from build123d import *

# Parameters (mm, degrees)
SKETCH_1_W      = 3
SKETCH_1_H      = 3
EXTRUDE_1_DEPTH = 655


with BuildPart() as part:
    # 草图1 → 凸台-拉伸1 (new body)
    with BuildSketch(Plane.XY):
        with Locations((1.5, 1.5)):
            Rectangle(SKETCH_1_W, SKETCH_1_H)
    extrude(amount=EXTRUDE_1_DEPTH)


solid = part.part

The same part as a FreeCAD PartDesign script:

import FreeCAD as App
import Part
import Sketcher

doc = App.newDocument("Part")
body = doc.addObject("PartDesign::Body", "Body")

# Sketch on XY plane
sketch1 = body.newObject("Sketcher::SketchObject", "Sketch")
sketch1.AttachmentSupport = (doc.getObject("XY_Plane"), [""])
sketch1.MapMode = "FlatFace"
sketch1.addGeometry([
    Part.LineSegment(App.Vector(0, 3, 0), App.Vector(0, 0, 0)),
    Part.LineSegment(App.Vector(0, 0, 0), App.Vector(3, 0, 0)),
    Part.LineSegment(App.Vector(3, 0, 0), App.Vector(3, 3, 0)),
    Part.LineSegment(App.Vector(3, 3, 0), App.Vector(0, 3, 0)),
], False)
sketch1.addConstraint([
    Sketcher.Constraint("Coincident", 0, 2, 1, 1),
    Sketcher.Constraint("Coincident", 1, 2, 2, 1),
    Sketcher.Constraint("Coincident", 2, 2, 3, 1),
    Sketcher.Constraint("Coincident", 3, 2, 0, 1),
    Sketcher.Constraint("Vertical", 0),
    Sketcher.Constraint("Horizontal", 1),
    Sketcher.Constraint("Vertical", 2),
    Sketcher.Constraint("Horizontal", 3),
    Sketcher.Constraint("Coincident", 0, 2, -1, 1),
    Sketcher.Constraint("Equal", 3, 0),
    Sketcher.Constraint("DistanceX", 1, 1, 1, 2, 3.0),
])
pad1 = body.newObject("PartDesign::Pad", "Pad")
pad1.Profile = sketch1
pad1.Length = 655

doc.recompute()
